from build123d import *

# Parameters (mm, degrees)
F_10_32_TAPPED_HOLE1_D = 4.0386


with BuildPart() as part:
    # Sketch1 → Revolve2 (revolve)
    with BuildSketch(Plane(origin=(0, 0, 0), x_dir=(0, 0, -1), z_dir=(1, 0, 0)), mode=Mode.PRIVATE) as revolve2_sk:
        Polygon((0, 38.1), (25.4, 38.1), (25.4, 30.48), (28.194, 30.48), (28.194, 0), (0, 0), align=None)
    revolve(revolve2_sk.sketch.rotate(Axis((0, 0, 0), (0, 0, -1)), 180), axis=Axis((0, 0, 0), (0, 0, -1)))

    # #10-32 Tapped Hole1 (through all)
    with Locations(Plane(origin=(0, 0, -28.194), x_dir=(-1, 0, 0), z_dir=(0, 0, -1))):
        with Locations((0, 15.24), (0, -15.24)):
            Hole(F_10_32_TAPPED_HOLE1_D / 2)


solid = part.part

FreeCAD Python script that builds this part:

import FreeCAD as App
import Part
import Sketcher
Q = App.Units.Quantity


def add_polygon(sketch, points):
    """Adds a closed chain of lines whose ends are joined by coincident constraints."""
    first, n = sketch.GeometryCount, len(points)
    for a, b in zip(points, points[1:] + points[:1]):
        sketch.addGeometry(Part.LineSegment(App.Vector(*a, 0), App.Vector(*b, 0)), False)
    for i in range(n):
        sketch.addConstraint(Sketcher.Constraint("Coincident", first + i, 2, first + (i + 1) % n, 1))

doc = App.newDocument("Part")
params = doc.addObject("Spreadsheet::Sheet", "Params")
for row, (alias, value) in enumerate([
    ("sketch1_height", "1 in"),
    ("sketch1_width", "1.5 in"),
    ("sketch1_width2", "1.2 in"),
    ("sketch1_height2", "1.11 in"),
    ("revolution_angle", "360 deg"),
    ("sketch2_diameter", "0.159 in"),
    ("hole_diameter", "0.159 in"),
], start=1):
    params.set(f"A{row}", alias)
    params.set(f"B{row}", "=" + value)
    params.setAlias(f"B{row}", alias)

body = doc.addObject("PartDesign::Body", "Body")

sketch1 = body.newObject("Sketcher::SketchObject", "Sketch")
sketch1.AttachmentSupport = (doc.getObject("YZ_Plane"), [""])
sketch1.MapMode = "FlatFace"
add_polygon(sketch1, [(38.1, -25.4), (38.1, 0), (0, 0), (0, -28.2), (30.5, -28.2), (30.5, -25.4)])
sketch1.addConstraint([
    Sketcher.Constraint("Vertical", 0),
    Sketcher.Constraint("Horizontal", 1),
    Sketcher.Constraint("Vertical", 2),
    Sketcher.Constraint("Horizontal", 3),
    Sketcher.Constraint("Vertical", 4),
    Sketcher.Constraint("Horizontal", 5),
    Sketcher.Constraint("Coincident", 1, 2, -1, 1),
    Sketcher.Constraint("DistanceY", 0, 1, 0, 2, Q("1 in")),
    Sketcher.Constraint("DistanceX", 1, 2, 1, 1, Q("1.5 in")),
    Sketcher.Constraint("DistanceX", 3, 1, 3, 2, Q("1.2 in")),
    Sketcher.Constraint("DistanceY", 2, 2, 2, 1, Q("1.11 in")),
])
sketch1.setExpression("Constraints[13]", "Params.sketch1_height")
sketch1.setExpression("Constraints[14]", "Params.sketch1_width")
sketch1.setExpression("Constraints[15]", "Params.sketch1_width2")
sketch1.setExpression("Constraints[16]", "Params.sketch1_height2")
revolution = body.newObject("PartDesign::Revolution", "Revolution")
revolution.Profile = sketch1
revolution.ReferenceAxis = (sketch1, ["V_Axis"])
revolution.setExpression("Angle", "Params.revolution_angle")

sketch2 = body.newObject("Sketcher::SketchObject", "Sketch001")
sketch2.AttachmentSupport = (doc.getObject("XY_Plane"), [""])
sketch2.MapMode = "FlatFace"
sketch2.AttachmentOffset = App.Placement(App.Vector(0, 0, -1.11 * 25.4), App.Rotation())
sketch2.addGeometry([
    Part.Circle(App.Vector(0, 15.2, 0), App.Vector(0, 0, 1), 2),
    Part.Circle(App.Vector(0, -15.2, 0), App.Vector(0, 0, 1), 2),
], False)
sketch2.addConstraint([
    Sketcher.Constraint("Equal", 0, 1),
    Sketcher.Constraint("Symmetric", 0, 3, 1, 3, -1, 1),
    Sketcher.Constraint("PointOnObject", 0, 3, -2),
    Sketcher.Constraint("Diameter", 0, Q("0.159 in")),
    Sketcher.Constraint("DistanceY", -1, 1, 0, 3, Q("0.6 in")),
])
sketch2.setExpression("Constraints[3]", "Params.sketch2_diameter")
doc.recompute()
hole = body.newObject("PartDesign::Hole", "Hole")
hole.Profile = sketch2
hole.ThreadType = "None"
hole.setExpression("Diameter", "Params.hole_diameter")
hole.DepthType = "ThroughAll"
hole.Reversed = True

doc.recompute()
